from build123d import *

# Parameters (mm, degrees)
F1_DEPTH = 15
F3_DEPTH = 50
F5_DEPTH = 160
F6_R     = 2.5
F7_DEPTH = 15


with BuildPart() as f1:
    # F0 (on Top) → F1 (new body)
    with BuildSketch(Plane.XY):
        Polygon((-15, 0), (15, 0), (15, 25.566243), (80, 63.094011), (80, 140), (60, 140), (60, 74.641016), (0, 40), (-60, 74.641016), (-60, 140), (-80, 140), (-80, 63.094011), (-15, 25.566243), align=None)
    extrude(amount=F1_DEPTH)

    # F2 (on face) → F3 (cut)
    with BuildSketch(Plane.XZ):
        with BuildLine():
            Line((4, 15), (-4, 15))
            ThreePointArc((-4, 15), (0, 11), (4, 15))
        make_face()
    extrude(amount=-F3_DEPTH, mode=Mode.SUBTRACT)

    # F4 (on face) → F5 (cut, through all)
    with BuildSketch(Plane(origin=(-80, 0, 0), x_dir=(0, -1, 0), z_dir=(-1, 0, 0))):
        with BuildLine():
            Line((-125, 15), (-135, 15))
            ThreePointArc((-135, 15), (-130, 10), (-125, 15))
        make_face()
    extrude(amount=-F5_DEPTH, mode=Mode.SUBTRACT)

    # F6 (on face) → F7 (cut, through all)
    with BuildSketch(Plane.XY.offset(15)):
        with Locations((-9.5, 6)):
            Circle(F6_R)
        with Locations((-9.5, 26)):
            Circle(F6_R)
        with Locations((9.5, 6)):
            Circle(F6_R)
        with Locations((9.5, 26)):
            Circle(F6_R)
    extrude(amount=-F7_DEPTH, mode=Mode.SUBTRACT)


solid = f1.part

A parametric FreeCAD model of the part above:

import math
import FreeCAD as App
import Part
import Sketcher
Q = App.Units.Quantity

doc = App.newDocument("Part")
params = doc.addObject("Spreadsheet::Sheet", "Params")
for row, (alias, value) in enumerate([
    ("sketch1_width", "30 mm"),
    ("sketch1_width2", "20 mm"),
    ("pad1_length", "15 mm"),
    ("sketch2_radius", "4 mm"),
    ("pocket1_length", "50 mm"),
    ("sketch3_radius", "5 mm"),
    ("sketch4_diameter", "5 mm"),
], start=1):
    params.set(f"A{row}", alias)
    params.set(f"B{row}", "=" + value)
    params.setAlias(f"B{row}", alias)

body = doc.addObject("PartDesign::Body", "Body")

# Sketch on XY plane
sketch1 = body.newObject("Sketcher::SketchObject", "Sketch")
sketch1.AttachmentSupport = (doc.getObject("XY_Plane"), [""])
sketch1.MapMode = "FlatFace"
sketch1.addGeometry([
    Part.LineSegment(App.Vector(-15, 0, 0), App.Vector(15, 0, 0)),  # 0
    Part.LineSegment(App.Vector(15, 0, 0), App.Vector(15, 26, 0)),  # 1
    Part.LineSegment(App.Vector(15, 26, 0), App.Vector(80, 63, 0)),  # 2
    Part.LineSegment(App.Vector(80, 63, 0), App.Vector(80, 140, 0)),  # 3
    Part.LineSegment(App.Vector(80, 140, 0), App.Vector(60, 140, 0)),  # 4
    Part.LineSegment(App.Vector(60, 140, 0), App.Vector(60, 75, 0)),  # 5
    Part.LineSegment(App.Vector(60, 75, 0), App.Vector(0, 40, 0)),  # 6
    Part.LineSegment(App.Vector(0, 40, 0), App.Vector(-60, 75, 0)),  # 7
    Part.LineSegment(App.Vector(-60, 75, 0), App.Vector(-60, 140, 0)),  # 8
    Part.LineSegment(App.Vector(-60, 140, 0), App.Vector(-80, 140, 0)),  # 9
    Part.LineSegment(App.Vector(-80, 140, 0), App.Vector(-80, 63, 0)),  # 10
    Part.LineSegment(App.Vector(-80, 63, 0), App.Vector(-15, 26, 0)),  # 11
    Part.LineSegment(App.Vector(-15, 26, 0), App.Vector(-15, 0, 0)),  # 12
], False)
sketch1.addConstraint([
    Sketcher.Constraint("Coincident", 0, 2, 1, 1),
    Sketcher.Constraint("Coincident", 1, 2, 2, 1),
    Sketcher.Constraint("Coincident", 2, 2, 3, 1),
    Sketcher.Constraint("Coincident", 3, 2, 4, 1),
    Sketcher.Constraint("Coincident", 4, 2, 5, 1),
    Sketcher.Constraint("Coincident", 5, 2, 6, 1),
    Sketcher.Constraint("Coincident", 6, 2, 7, 1),
    Sketcher.Constraint("Coincident", 7, 2, 8, 1),
    Sketcher.Constraint("Coincident", 8, 2, 9, 1),
    Sketcher.Constraint("Coincident", 9, 2, 10, 1),
    Sketcher.Constraint("Coincident", 10, 2, 11, 1),
    Sketcher.Constraint("Coincident", 11, 2, 12, 1),
    Sketcher.Constraint("Coincident", 12, 2, 0, 1),
    Sketcher.Constraint("Horizontal", 0),
    Sketcher.Constraint("Vertical", 1),
    Sketcher.Constraint("Vertical", 3),
    Sketcher.Constraint("Horizontal", 4),
    Sketcher.Constraint("Vertical", 5),
    Sketcher.Constraint("Vertical", 8),
    Sketcher.Constraint("Horizontal", 9),
    Sketcher.Constraint("Vertical", 10),
    Sketcher.Constraint("Vertical", 12),
    Sketcher.Constraint("Symmetric", 0, 2, 12, 2, -1, 1),
    Sketcher.Constraint("Symmetric", 5, 2, 7, 2, -2),
    Sketcher.Constraint("Symmetric", 3, 2, 9, 2, -2),
    Sketcher.Constraint("PointOnObject", 6, 2, -2),
    Sketcher.Constraint("Parallel", 2, 6),
    Sketcher.Constraint("Parallel", 7, 11),
    Sketcher.Constraint("Horizontal", 2, 2, 10, 2),
    Sketcher.Constraint("DistanceX", 0, 1, 0, 2, 30.0),
    Sketcher.Constraint("DistanceX", 4, 2, 4, 1, 20.0),
    Sketcher.Constraint("Angle", 2, Q("30 deg")),
    Sketcher.Constraint("DistanceX", -1, 1, 2, 2, 80.0),
    Sketcher.Constraint("DistanceY", -1, 1, 3, 2, 140.0),
    Sketcher.Constraint("DistanceY", -1, 1, 6, 2, 40.0),
    Sketcher.Constraint("DistanceY", 3, 1, 3, 2, 76.905989),
])
sketch1.setExpression("Constraints[29]", "Params.sketch1_width")
sketch1.setExpression("Constraints[30]", "Params.sketch1_width2")
pad1 = body.newObject("PartDesign::Pad", "Pad")
pad1.Profile = sketch1
pad1.setExpression("Length", "Params.pad1_length")

# Sketch on XZ plane
sketch2 = body.newObject("Sketcher::SketchObject", "Sketch001")
sketch2.AttachmentSupport = (doc.getObject("XZ_Plane"), [""])
sketch2.MapMode = "FlatFace"
sketch2.addGeometry([
    Part.LineSegment(App.Vector(4, 15, 0), App.Vector(-4, 15, 0)),
    Part.ArcOfCircle(Part.Circle(App.Vector(0, 15, 0), App.Vector(0, 0, 1), 4), math.radians(180), math.radians(360)),
], False)
sketch2.addConstraint([
    Sketcher.Constraint("Coincident", 0, 1, 1, 2),
    Sketcher.Constraint("Coincident", 1, 1, 0, 2),
    Sketcher.Constraint("Horizontal", 0),
    Sketcher.Constraint("PointOnObject", 1, 3, -2),
    Sketcher.Constraint("Horizontal", 1, 3, 0, 1),
    Sketcher.Constraint("Radius", 1, 4.0),
    Sketcher.Constraint("DistanceY", -1, 1, 1, 3, 15.0),
])
sketch2.setExpression("Constraints[5]", "Params.sketch2_radius")
pocket1 = body.newObject("PartDesign::Pocket", "Pocket")
pocket1.Profile = sketch2
pocket1.setExpression("Length", "Params.pocket1_length")

# Sketch on YZ plane
sketch3 = body.newObject("Sketcher::SketchObject", "Sketch002")
sketch3.AttachmentSupport = (doc.getObject("YZ_Plane"), [""])
sketch3.MapMode = "FlatFace"
sketch3.AttachmentOffset = App.Placement(App.Vector(0, 0, -80), App.Rotation())
sketch3.addGeometry([
    Part.LineSegment(App.Vector(125, 15, 0), App.Vector(135, 15, 0)),
    Part.ArcOfCircle(Part.Circle(App.Vector(130, 15, 0), App.Vector(0, 0, 1), 5), math.radians(180), math.radians(360)),
], False)
sketch3.addConstraint([
    Sketcher.Constraint("Coincident", 0, 1, 1, 1),
    Sketcher.Constraint("Coincident", 1, 2, 0, 2),
    Sketcher.Constraint("Horizontal", 0),
    Sketcher.Constraint("Horizontal", 1, 3, 0, 1),
    Sketcher.Constraint("Radius", 1, 5.0),
    Sketcher.Constraint("DistanceX", -1, 1, 1, 3, 130.0),
    Sketcher.Constraint("DistanceY", -1, 1, 1, 3, 15.0),
])
sketch3.setExpression("Constraints[4]", "Params.sketch3_radius")
pocket2 = body.newObject("PartDesign::Pocket", "Pocket001")
pocket2.Profile = sketch3
pocket2.Type = "ThroughAll"
pocket2.Reversed = True

# Sketch on XY plane
sketch4 = body.newObject("Sketcher::SketchObject", "Sketch003")
sketch4.AttachmentSupport = (doc.getObject("XY_Plane"), [""])
sketch4.MapMode = "FlatFace"
sketch4.AttachmentOffset = App.Placement(App.Vector(0, 0, 15), App.Rotation())
sketch4.addGeometry([
    Part.Circle(App.Vector(-9.5, 6, 0), App.Vector(0, 0, 1), 2.5),
    Part.Circle(App.Vector(-9.5, 26, 0), App.Vector(0, 0, 1), 2.5),
    Part.Circle(App.Vector(9.5, 6, 0), App.Vector(0, 0, 1), 2.5),
    Part.Circle(App.Vector(9.5, 26, 0), App.Vector(0, 0, 1), 2.5),
], False)
sketch4.addConstraint([
    Sketcher.Constraint("Equal", 0, 1),
    Sketcher.Constraint("Equal", 1, 2),
    Sketcher.Constraint("Equal", 2, 3),
    Sketcher.Constraint("Symmetric", 0, 3, 2, 3, -2),
    Sketcher.Constraint("Symmetric", 1, 3, 3, 3, -2),
    Sketcher.Constraint("Vertical", 0, 3, 1, 3),
    Sketcher.Constraint("Diameter", 0, 5.0),
    Sketcher.Constraint("DistanceY", -1, 1, 0, 3, 6.0),
    Sketcher.Constraint("DistanceY", -1, 1, 1, 3, 26.0),
    Sketcher.Constraint("DistanceX", 0, 3, 2, 3, 19.0),
])
sketch4.setExpression("Constraints[6]", "Params.sketch4_diameter")
pocket3 = body.newObject("PartDesign::Pocket", "Pocket002")
pocket3.Profile = sketch4
pocket3.Type = "ThroughAll"

doc.recompute()
